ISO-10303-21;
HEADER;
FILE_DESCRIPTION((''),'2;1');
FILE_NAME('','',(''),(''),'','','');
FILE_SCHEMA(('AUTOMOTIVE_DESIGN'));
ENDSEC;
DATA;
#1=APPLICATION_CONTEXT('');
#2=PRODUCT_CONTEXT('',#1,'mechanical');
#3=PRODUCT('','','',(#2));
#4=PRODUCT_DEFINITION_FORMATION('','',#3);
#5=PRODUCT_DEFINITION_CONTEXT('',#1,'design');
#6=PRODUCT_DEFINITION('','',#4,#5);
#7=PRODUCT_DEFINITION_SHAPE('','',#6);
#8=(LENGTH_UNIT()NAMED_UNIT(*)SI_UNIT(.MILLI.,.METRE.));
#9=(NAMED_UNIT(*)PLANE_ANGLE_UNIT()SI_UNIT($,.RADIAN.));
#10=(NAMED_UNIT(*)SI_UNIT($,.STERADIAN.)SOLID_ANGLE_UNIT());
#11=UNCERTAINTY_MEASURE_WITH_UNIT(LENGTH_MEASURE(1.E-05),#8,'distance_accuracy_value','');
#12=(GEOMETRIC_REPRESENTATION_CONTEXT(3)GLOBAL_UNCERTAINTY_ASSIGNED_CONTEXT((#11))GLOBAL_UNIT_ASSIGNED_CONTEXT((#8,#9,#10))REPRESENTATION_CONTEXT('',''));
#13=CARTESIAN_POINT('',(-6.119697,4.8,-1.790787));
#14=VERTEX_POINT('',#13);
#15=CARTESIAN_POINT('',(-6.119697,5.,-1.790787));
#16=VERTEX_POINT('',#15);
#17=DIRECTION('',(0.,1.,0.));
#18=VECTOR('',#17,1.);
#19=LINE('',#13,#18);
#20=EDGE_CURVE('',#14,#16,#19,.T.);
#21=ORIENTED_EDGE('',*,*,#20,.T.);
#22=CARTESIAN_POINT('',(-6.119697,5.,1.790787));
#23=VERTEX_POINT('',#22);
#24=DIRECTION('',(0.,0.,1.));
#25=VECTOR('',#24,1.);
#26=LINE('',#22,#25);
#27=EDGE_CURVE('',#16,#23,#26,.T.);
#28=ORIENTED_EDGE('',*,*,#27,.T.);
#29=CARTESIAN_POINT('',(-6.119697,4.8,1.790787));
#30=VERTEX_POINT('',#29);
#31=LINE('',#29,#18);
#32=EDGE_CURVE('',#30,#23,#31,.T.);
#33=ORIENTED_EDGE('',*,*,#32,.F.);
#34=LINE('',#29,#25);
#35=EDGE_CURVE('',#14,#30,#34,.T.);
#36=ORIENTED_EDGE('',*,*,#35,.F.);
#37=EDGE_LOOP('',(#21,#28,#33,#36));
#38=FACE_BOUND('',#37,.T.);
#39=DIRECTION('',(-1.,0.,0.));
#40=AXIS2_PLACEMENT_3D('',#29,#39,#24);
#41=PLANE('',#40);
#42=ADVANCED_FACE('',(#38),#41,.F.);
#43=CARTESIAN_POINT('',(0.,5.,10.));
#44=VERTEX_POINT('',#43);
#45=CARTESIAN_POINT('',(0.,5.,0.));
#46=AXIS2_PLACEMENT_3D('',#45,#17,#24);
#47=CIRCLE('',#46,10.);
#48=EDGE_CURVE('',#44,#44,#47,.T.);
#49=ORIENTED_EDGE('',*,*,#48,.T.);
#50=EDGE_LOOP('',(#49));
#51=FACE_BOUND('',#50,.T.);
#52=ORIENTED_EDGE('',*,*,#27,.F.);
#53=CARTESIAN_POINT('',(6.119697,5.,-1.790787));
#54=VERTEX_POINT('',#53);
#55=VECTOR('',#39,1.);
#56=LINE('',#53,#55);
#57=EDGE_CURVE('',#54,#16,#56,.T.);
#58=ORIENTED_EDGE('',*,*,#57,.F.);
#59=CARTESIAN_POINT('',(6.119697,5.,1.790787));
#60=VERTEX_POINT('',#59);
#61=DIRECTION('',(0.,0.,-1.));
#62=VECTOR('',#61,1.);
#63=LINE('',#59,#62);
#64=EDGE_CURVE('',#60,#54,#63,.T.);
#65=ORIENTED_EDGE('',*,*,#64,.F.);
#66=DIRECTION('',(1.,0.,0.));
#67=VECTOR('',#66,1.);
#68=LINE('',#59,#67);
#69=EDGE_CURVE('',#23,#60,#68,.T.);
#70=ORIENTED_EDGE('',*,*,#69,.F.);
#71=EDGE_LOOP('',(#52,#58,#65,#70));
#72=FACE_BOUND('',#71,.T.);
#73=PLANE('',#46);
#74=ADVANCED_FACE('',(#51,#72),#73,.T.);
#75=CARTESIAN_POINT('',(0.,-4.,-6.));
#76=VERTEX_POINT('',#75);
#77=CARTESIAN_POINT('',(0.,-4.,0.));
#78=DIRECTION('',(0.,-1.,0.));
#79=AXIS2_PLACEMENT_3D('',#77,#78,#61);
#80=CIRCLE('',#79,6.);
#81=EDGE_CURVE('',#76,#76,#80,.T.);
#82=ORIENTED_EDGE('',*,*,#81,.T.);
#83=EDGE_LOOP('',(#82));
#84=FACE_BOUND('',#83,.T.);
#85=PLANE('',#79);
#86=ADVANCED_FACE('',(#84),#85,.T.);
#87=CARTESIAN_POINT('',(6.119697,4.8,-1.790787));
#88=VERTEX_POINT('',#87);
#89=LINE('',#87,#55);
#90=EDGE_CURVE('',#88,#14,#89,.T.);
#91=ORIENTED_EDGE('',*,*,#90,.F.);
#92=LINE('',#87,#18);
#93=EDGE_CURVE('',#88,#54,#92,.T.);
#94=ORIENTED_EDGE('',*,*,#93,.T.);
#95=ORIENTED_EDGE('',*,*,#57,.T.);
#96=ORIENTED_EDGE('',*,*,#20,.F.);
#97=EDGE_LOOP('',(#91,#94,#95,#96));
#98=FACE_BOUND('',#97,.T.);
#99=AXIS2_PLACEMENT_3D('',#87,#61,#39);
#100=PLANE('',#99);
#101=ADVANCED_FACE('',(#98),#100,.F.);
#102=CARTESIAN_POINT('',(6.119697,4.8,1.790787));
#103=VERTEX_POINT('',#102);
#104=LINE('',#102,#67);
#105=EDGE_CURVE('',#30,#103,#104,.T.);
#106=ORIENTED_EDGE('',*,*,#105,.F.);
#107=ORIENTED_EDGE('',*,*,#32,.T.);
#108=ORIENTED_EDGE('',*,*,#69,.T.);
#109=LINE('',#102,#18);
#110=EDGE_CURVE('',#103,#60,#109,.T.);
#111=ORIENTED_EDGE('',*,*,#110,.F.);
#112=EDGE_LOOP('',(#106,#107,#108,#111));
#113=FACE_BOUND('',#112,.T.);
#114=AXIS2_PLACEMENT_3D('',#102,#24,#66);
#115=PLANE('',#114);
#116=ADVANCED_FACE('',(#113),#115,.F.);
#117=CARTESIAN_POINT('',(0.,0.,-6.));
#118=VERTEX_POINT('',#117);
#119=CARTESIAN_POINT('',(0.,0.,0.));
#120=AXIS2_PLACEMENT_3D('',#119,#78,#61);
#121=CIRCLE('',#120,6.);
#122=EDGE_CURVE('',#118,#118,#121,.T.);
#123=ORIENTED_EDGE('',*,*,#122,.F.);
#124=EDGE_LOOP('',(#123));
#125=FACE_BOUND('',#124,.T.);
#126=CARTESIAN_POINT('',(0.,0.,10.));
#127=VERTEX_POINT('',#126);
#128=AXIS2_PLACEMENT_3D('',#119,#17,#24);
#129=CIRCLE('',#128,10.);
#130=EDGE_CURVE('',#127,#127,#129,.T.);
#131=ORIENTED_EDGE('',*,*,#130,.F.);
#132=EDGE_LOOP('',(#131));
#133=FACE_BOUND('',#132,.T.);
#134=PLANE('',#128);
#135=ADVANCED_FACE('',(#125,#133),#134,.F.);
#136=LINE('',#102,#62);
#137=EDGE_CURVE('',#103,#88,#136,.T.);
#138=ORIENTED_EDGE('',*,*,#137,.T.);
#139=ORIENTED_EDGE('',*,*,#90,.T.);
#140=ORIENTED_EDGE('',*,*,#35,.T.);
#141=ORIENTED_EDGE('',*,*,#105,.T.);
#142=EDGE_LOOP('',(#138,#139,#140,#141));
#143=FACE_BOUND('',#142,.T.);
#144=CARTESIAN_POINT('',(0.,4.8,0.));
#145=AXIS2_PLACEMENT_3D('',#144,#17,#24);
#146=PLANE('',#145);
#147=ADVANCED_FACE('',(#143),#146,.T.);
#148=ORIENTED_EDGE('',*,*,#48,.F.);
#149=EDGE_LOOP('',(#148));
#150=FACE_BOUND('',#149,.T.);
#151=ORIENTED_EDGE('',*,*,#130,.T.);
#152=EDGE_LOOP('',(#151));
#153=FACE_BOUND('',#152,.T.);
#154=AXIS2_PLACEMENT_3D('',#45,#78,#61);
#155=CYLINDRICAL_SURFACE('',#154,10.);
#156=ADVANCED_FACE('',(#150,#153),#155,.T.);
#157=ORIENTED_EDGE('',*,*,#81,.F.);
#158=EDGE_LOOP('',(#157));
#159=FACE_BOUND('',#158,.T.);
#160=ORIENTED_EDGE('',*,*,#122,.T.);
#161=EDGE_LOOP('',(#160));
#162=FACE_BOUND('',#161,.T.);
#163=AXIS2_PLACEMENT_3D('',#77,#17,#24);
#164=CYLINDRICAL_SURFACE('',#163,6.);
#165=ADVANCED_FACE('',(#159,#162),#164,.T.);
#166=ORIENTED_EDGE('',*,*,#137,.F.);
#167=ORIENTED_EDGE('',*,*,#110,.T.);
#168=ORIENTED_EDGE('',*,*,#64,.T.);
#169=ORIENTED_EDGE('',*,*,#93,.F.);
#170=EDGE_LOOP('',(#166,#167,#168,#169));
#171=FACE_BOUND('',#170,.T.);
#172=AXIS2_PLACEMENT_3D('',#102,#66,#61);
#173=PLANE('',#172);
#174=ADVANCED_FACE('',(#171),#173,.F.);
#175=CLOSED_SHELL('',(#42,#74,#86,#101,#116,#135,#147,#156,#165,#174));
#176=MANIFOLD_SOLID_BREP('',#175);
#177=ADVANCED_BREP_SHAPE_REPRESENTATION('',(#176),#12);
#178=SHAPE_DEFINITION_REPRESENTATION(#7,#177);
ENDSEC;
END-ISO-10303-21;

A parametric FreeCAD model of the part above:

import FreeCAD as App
import Part
import Sketcher

V = App.Vector
Q = App.Units.Quantity

doc = App.newDocument("Part")
params = doc.addObject("Spreadsheet::Sheet", "Params")
for row, (alias, value) in enumerate([
    ("sketch1_diameter", "20 mm"),
    ("pad1_length", "5 mm"),
    ("sketch2_diameter", "12 mm"),
    ("pad2_length", "4 mm"),
    ("pocket1_length", "0.2 mm"),
], start=1):
    params.set(f"A{row}", alias)
    params.set(f"B{row}", "=" + value)
    params.setAlias(f"B{row}", alias)

body = doc.addObject("PartDesign::Body", "Body")

sketch1 = body.newObject("Sketcher::SketchObject", "Sketch")
sketch1.AttachmentSupport = (doc.getObject("XZ_Plane"), [""])
sketch1.MapMode = "FlatFace"
sketch1.addGeometry(Part.Circle(V(0, 0, 0), V(0, 0, 1), 10), False)
sketch1.addConstraint([
    Sketcher.Constraint("Coincident", 0, 3, -1, 1),
    Sketcher.Constraint("Diameter", 0, Q("20 mm")),
])
sketch1.setExpression("Constraints[1]", "Params.sketch1_diameter")
pad1 = body.newObject("PartDesign::Pad", "Pad")
pad1.Profile = sketch1
pad1.setExpression("Length", "Params.pad1_length")
pad1.Reversed = True

sketch2 = body.newObject("Sketcher::SketchObject", "Sketch001")
sketch2.AttachmentSupport = (doc.getObject("XZ_Plane"), [""])
sketch2.MapMode = "FlatFace"
sketch2.addGeometry(Part.Circle(V(0, 0, 0), V(0, 0, 1), 6), False)
sketch2.addConstraint([
    Sketcher.Constraint("Coincident", 0, 3, -1, 1),
    Sketcher.Constraint("Diameter", 0, Q("12 mm")),
])
sketch2.setExpression("Constraints[1]", "Params.sketch2_diameter")
pad2 = body.newObject("PartDesign::Pad", "Pad001")
pad2.Profile = sketch2
pad2.setExpression("Length", "Params.pad2_length")

sketch3 = body.newObject("Sketcher::SketchObject", "Sketch002")
sketch3.AttachmentSupport = (doc.getObject("XZ_Plane"), [""])
sketch3.MapMode = "FlatFace"
sketch3.AttachmentOffset = App.Placement(V(0, 0, -5), App.Rotation())
sketch3.addGeometry([
    Part.LineSegment(V(-6.1, -1.8, 0), V(-6.1, 1.8, 0)),
    Part.LineSegment(V(-6.1, 1.8, 0), V(6.1, 1.8, 0)),
    Part.LineSegment(V(6.1, 1.8, 0), V(6.1, -1.8, 0)),
    Part.LineSegment(V(6.1, -1.8, 0), V(-6.1, -1.8, 0)),
], False)
sketch3.addConstraint([
    Sketcher.Constraint("Coincident", 0, 2, 1, 1),
    Sketcher.Constraint("Coincident", 1, 2, 2, 1),
    Sketcher.Constraint("Coincident", 2, 2, 3, 1),
    Sketcher.Constraint("Coincident", 3, 2, 0, 1),
    Sketcher.Constraint("Vertical", 0),
    Sketcher.Constraint("Horizontal", 1),
    Sketcher.Constraint("Vertical", 2),
    Sketcher.Constraint("Horizontal", 3),
    Sketcher.Constraint("Symmetric", 0, 2, 2, 2, -1, 1),
    Sketcher.Constraint("DistanceX", 1, 1, 1, 2, Q("12.239393 mm")),
    Sketcher.Constraint("DistanceY", 0, 1, 0, 2, Q("3.581574 mm")),
])
pocket1 = body.newObject("PartDesign::Pocket", "Pocket")
pocket1.Profile = sketch3
pocket1.setExpression("Length", "Params.pocket1_length")
pocket1.Reversed = True

doc.recompute()
